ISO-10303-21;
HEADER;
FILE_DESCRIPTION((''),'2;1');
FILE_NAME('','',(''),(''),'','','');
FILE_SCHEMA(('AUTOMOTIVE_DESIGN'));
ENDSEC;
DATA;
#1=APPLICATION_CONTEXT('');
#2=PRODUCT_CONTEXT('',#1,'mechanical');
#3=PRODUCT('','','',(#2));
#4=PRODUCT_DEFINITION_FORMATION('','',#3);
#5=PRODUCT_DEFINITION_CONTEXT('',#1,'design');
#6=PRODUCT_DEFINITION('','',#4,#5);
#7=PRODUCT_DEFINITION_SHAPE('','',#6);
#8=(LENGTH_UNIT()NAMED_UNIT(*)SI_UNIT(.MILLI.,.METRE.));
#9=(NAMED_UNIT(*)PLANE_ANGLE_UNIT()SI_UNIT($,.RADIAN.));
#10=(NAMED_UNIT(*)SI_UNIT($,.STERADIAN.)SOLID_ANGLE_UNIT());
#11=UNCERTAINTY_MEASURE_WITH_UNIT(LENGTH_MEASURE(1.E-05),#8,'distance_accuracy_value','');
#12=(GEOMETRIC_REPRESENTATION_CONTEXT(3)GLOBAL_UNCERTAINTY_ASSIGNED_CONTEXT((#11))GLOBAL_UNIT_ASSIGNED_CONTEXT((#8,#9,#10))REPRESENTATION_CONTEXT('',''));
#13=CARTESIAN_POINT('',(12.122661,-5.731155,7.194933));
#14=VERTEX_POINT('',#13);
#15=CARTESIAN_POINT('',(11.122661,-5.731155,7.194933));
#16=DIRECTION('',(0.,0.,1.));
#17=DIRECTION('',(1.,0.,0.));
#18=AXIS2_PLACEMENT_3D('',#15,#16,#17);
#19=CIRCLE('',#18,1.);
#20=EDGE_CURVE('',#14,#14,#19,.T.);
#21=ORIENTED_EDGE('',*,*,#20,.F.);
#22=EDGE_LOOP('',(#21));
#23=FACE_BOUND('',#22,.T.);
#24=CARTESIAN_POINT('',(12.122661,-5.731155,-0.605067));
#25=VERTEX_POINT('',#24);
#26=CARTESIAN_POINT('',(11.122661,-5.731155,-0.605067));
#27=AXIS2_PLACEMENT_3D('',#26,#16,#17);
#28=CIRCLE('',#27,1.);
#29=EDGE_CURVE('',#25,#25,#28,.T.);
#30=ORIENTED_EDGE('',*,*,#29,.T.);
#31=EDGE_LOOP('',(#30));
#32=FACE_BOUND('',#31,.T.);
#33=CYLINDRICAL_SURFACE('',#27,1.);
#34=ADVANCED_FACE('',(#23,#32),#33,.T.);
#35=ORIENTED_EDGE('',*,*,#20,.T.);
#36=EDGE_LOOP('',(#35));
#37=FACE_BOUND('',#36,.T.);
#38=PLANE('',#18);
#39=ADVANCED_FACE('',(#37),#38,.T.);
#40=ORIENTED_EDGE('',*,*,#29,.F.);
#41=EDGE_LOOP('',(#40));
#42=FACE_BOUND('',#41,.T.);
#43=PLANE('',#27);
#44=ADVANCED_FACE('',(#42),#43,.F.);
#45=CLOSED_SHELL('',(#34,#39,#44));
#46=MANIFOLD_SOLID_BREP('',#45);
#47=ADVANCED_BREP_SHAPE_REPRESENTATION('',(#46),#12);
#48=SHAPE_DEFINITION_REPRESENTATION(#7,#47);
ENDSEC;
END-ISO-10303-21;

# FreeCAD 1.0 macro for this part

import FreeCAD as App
import Part
import Sketcher

V = App.Vector

doc = App.newDocument("Part")
body = doc.addObject("PartDesign::Body", "Body")

# Sketch on XY plane
sketch1 = body.newObject("Sketcher::SketchObject", "Sketch")
sketch1.AttachmentSupport = (doc.getObject("XY_Plane"), [""])
sketch1.MapMode = "FlatFace"
sketch1.AttachmentOffset = App.Placement(V(0, 0, 7.194933), App.Rotation())
sketch1.addGeometry(Part.Circle(V(11.122661, -5.731155, 0), V(0, 0, 1), 1), False)
sketch1.addConstraint([
    Sketcher.Constraint("Diameter", 0, 2.0),
    Sketcher.Constraint("DistanceX", -1, 1, 0, 3, 11.122661),
    Sketcher.Constraint("DistanceY", 0, 3, -1, 1, 5.731155),
])
pad1 = body.newObject("PartDesign::Pad", "Pad")
pad1.Profile = sketch1
pad1.Length = 7.8
pad1.Reversed = True

doc.recompute()
